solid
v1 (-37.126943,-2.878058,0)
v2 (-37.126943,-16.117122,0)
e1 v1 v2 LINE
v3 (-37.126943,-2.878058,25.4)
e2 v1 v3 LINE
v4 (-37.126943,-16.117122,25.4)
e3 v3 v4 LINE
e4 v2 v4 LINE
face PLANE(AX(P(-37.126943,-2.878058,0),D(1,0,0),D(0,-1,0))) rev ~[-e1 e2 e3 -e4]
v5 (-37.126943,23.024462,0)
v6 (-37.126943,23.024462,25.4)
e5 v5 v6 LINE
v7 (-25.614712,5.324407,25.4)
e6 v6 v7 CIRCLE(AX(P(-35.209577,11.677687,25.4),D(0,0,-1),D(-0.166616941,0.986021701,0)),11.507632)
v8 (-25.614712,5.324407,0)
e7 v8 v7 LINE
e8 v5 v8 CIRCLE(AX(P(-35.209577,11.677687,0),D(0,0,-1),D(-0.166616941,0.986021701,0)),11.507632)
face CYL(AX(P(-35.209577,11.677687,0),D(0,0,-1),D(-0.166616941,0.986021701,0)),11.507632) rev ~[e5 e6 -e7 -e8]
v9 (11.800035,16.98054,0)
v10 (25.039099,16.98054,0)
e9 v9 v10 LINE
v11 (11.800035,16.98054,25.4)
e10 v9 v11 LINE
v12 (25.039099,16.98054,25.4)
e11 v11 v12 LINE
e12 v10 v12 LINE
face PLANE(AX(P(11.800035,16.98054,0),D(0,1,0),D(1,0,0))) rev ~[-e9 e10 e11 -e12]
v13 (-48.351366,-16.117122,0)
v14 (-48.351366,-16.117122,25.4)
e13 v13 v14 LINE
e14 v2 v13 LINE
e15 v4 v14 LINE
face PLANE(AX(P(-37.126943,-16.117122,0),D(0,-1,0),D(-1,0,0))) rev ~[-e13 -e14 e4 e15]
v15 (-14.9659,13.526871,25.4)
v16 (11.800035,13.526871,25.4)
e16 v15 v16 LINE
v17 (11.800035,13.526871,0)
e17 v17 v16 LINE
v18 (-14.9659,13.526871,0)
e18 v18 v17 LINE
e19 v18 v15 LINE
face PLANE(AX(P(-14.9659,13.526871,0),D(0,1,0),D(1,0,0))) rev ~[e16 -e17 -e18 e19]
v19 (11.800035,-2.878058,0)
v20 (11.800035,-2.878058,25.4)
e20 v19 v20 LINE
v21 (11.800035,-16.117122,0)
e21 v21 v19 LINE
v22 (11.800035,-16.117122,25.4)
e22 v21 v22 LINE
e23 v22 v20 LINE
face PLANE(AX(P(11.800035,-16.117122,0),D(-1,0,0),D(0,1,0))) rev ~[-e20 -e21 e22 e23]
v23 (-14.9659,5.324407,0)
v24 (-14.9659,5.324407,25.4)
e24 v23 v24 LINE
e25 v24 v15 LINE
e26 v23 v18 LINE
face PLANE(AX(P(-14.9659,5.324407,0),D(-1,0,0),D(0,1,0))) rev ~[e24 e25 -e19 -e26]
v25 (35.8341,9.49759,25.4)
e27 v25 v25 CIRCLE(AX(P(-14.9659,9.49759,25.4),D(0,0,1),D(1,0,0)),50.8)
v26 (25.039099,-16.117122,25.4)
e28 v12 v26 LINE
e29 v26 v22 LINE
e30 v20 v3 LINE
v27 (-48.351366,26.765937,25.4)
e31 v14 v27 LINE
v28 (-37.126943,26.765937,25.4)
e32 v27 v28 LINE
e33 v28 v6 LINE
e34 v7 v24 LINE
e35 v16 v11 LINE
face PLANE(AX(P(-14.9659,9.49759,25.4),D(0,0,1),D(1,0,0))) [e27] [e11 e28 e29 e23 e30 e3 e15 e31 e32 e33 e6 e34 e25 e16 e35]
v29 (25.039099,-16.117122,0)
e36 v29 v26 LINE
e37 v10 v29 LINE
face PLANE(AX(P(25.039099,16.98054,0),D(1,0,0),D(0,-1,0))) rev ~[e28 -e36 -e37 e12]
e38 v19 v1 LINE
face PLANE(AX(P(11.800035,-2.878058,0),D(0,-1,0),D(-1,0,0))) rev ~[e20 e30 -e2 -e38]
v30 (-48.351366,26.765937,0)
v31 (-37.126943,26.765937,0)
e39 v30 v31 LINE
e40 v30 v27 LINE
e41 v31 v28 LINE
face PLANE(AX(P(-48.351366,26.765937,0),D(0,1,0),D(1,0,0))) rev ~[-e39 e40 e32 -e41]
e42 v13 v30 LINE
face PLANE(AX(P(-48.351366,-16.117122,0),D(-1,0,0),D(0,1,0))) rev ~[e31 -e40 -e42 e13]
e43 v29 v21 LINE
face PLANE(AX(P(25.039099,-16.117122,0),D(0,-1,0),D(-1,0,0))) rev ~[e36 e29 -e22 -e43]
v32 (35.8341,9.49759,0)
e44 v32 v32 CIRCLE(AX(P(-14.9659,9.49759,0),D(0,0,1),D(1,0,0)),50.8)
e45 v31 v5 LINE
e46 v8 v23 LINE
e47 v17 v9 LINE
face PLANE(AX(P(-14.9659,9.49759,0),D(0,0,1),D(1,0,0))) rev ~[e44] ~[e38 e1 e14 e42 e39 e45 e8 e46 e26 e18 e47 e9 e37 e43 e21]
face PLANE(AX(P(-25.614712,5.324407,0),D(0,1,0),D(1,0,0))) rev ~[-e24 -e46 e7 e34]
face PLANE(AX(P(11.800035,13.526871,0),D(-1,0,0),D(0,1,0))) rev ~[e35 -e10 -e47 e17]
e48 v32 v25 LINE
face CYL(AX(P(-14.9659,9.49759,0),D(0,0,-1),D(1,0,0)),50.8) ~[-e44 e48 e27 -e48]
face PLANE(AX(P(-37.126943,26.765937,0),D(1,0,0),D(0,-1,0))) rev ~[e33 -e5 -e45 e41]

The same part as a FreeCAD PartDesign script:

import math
import FreeCAD as App
import Part
import Sketcher

V = App.Vector
Q = App.Units.Quantity

doc = App.newDocument("Part")
body = doc.addObject("PartDesign::Body", "Body")

# Sketch on XY plane
sketch1 = body.newObject("Sketcher::SketchObject", "Sketch")
sketch1.AttachmentSupport = (doc.getObject("XY_Plane"), [""])
sketch1.MapMode = "FlatFace"
sketch1.addGeometry(Part.Circle(V(-15, 9.5, 0), V(0, 0, 1), 50.8), False)
sketch1.addGeometry(Part.LineSegment(V(-37.1, -2.9, 0), V(-37.1, -16.1, 0)), False)
sketch1.addGeometry(Part.LineSegment(V(-37.1, -16.1, 0), V(-48.4, -16.1, 0)), False)
sketch1.addGeometry(Part.LineSegment(V(-48.4, -16.1, 0), V(-48.4, 26.8, 0)), False)
sketch1.addGeometry(Part.LineSegment(V(-48.4, 26.8, 0), V(-37.1, 26.8, 0)), False)
sketch1.addGeometry(Part.LineSegment(V(-37.1, 26.8, 0), V(-37.1, 23, 0)), False)
sketch1.addGeometry(Part.ArcOfCircle(Part.Circle(V(-35.2, 11.7, 0), V(0, 0, 1), 11.5), math.radians(-34), math.radians(100)), False)
sketch1.addGeometry(Part.LineSegment(V(-25.6, 5.3, 0), V(-15, 5.3, 0)), False)
sketch1.addGeometry(Part.LineSegment(V(-15, 5.3, 0), V(-15, 13.5, 0)), False)
sketch1.addGeometry(Part.LineSegment(V(-15, 13.5, 0), V(11.8, 13.5, 0)), False)
sketch1.addGeometry(Part.LineSegment(V(11.8, 13.5, 0), V(11.8, 17, 0)), False)
sketch1.addGeometry(Part.LineSegment(V(11.8, 17, 0), V(25, 17, 0)), False)
sketch1.addGeometry(Part.LineSegment(V(25, 17, 0), V(25, -16.1, 0)), False)
sketch1.addGeometry(Part.LineSegment(V(25, -16.1, 0), V(11.8, -16.1, 0)), False)
sketch1.addGeometry(Part.LineSegment(V(11.8, -16.1, 0), V(11.8, -2.9, 0)), False)
sketch1.addGeometry(Part.LineSegment(V(11.8, -2.9, 0), V(-37.1, -2.9, 0)), False)
sketch1.addConstraint(Sketcher.Constraint("Coincident", 1, 2, 2, 1))
sketch1.addConstraint(Sketcher.Constraint("Coincident", 2, 2, 3, 1))
sketch1.addConstraint(Sketcher.Constraint("Coincident", 3, 2, 4, 1))
sketch1.addConstraint(Sketcher.Constraint("Coincident", 4, 2, 5, 1))
sketch1.addConstraint(Sketcher.Constraint("Coincident", 5, 2, 6, 2))
sketch1.addConstraint(Sketcher.Constraint("Coincident", 6, 1, 7, 1))
sketch1.addConstraint(Sketcher.Constraint("Coincident", 7, 2, 8, 1))
sketch1.addConstraint(Sketcher.Constraint("Coincident", 8, 2, 9, 1))
sketch1.addConstraint(Sketcher.Constraint("Coincident", 9, 2, 10, 1))
sketch1.addConstraint(Sketcher.Constraint("Coincident", 10, 2, 11, 1))
sketch1.addConstraint(Sketcher.Constraint("Coincident", 11, 2, 12, 1))
sketch1.addConstraint(Sketcher.Constraint("Coincident", 12, 2, 13, 1))
sketch1.addConstraint(Sketcher.Constraint("Coincident", 13, 2, 14, 1))
sketch1.addConstraint(Sketcher.Constraint("Coincident", 14, 2, 15, 1))
sketch1.addConstraint(Sketcher.Constraint("Coincident", 15, 2, 1, 1))
sketch1.addConstraint(Sketcher.Constraint("Vertical", 1))
sketch1.addConstraint(Sketcher.Constraint("Horizontal", 2))
sketch1.addConstraint(Sketcher.Constraint("Vertical", 3))
sketch1.addConstraint(Sketcher.Constraint("Horizontal", 4))
sketch1.addConstraint(Sketcher.Constraint("Vertical", 5))
sketch1.addConstraint(Sketcher.Constraint("Horizontal", 7))
sketch1.addConstraint(Sketcher.Constraint("Vertical", 8))
sketch1.addConstraint(Sketcher.Constraint("Horizontal", 9))
sketch1.addConstraint(Sketcher.Constraint("Vertical", 10))
sketch1.addConstraint(Sketcher.Constraint("Horizontal", 11))
sketch1.addConstraint(Sketcher.Constraint("Vertical", 12))
sketch1.addConstraint(Sketcher.Constraint("Horizontal", 13))
sketch1.addConstraint(Sketcher.Constraint("Vertical", 14))
sketch1.addConstraint(Sketcher.Constraint("Horizontal", 15))
sketch1.addConstraint(Sketcher.Constraint("Horizontal", 2, 2, 12, 2))
sketch1.addConstraint(Sketcher.Constraint("Vertical", 1, 2, 4, 2))
sketch1.addConstraint(Sketcher.Constraint("Vertical", 0, 3, 7, 2))
sketch1.addConstraint(Sketcher.Constraint("Vertical", 10, 2, 13, 2))
sketch1.addConstraint(Sketcher.Constraint("Equal", 13, 1))
sketch1.addConstraint(Sketcher.Constraint("Diameter", 0, Q("4 in")))
sketch1.addConstraint(Sketcher.Constraint("Radius", 6, Q("11.507632 mm")))
sketch1.addConstraint(Sketcher.Constraint("DistanceX", 8, 2, 11, 2, Q("1.575 in")))
sketch1.addConstraint(Sketcher.Constraint("DistanceX", 15, 2, 15, 1, Q("48.926978 mm")))
sketch1.addConstraint(Sketcher.Constraint("DistanceY", 3, 1, 3, 2, Q("42.883059 mm")))
sketch1.addConstraint(Sketcher.Constraint("DistanceY", 10, 1, 10, 2, Q("3.453669 mm")))
sketch1.addConstraint(Sketcher.Constraint("DistanceX", 0, 3, -1, 1, Q("14.9659 mm")))
sketch1.addConstraint(Sketcher.Constraint("DistanceX", 2, 2, 2, 1, Q("11.224423 mm")))
sketch1.addConstraint(Sketcher.Constraint("DistanceX", 7, 1, 7, 2, Q("10.648812 mm")))
sketch1.addConstraint(Sketcher.Constraint("DistanceX", 9, 1, 9, 2, Q("26.765935 mm")))
sketch1.addConstraint(Sketcher.Constraint("DistanceY", 5, 2, 5, 1, Q("3.741475 mm")))
sketch1.addConstraint(Sketcher.Constraint("DistanceY", 8, 1, 8, 2, Q("8.202463 mm")))
sketch1.addConstraint(Sketcher.Constraint("DistanceY", 12, 2, 12, 1, Q("33.097662 mm")))
sketch1.addConstraint(Sketcher.Constraint("DistanceY", -1, 1, 0, 3, Q("9.49759 mm")))
sketch1.addConstraint(Sketcher.Constraint("DistanceY", -1, 1, 8, 2, Q("13.526871 mm")))
pad1 = body.newObject("PartDesign::Pad", "Pad")
pad1.Profile = sketch1
pad1.Length = Q("1 in")

# Sketch on XY plane
sketch2 = body.newObject("Sketcher::SketchObject", "Sketch001")
sketch2.AttachmentSupport = (doc.getObject("XY_Plane"), [""])
sketch2.MapMode = "FlatFace"
sketch2.addGeometry(Part.Circle(V(-15, 9.5, 0), V(0, 0, 1), 50.8), False)
sketch2.addGeometry(Part.LineSegment(V(-37.1, -2.9, 0), V(-37.1, -16.1, 0)), False)
sketch2.addGeometry(Part.LineSegment(V(-37.1, -16.1, 0), V(-48.4, -16.1, 0)), False)
sketch2.addGeometry(Part.LineSegment(V(-48.4, -16.1, 0), V(-48.4, 26.8, 0)), False)
sketch2.addGeometry(Part.LineSegment(V(-48.4, 26.8, 0), V(-37.1, 26.8, 0)), False)
sketch2.addGeometry(Part.LineSegment(V(-37.1, 26.8, 0), V(-37.1, 23, 0)), False)
sketch2.addGeometry(Part.ArcOfCircle(Part.Circle(V(-35.2, 11.7, 0), V(0, 0, 1), 11.5), math.radians(-34), math.radians(100)), False)
sketch2.addGeometry(Part.LineSegment(V(-25.6, 5.3, 0), V(-15, 5.3, 0)), False)
sketch2.addGeometry(Part.LineSegment(V(-15, 5.3, 0), V(-15, 13.5, 0)), False)
sketch2.addGeometry(Part.LineSegment(V(-15, 13.5, 0), V(11.8, 13.5, 0)), False)
sketch2.addGeometry(Part.LineSegment(V(11.8, 13.5, 0), V(11.8, 17, 0)), False)
sketch2.addGeometry(Part.LineSegment(V(11.8, 17, 0), V(25, 17, 0)), False)
sketch2.addGeometry(Part.LineSegment(V(25, 17, 0), V(25, -16.1, 0)), False)
sketch2.addGeometry(Part.LineSegment(V(25, -16.1, 0), V(11.8, -16.1, 0)), False)
sketch2.addGeometry(Part.LineSegment(V(11.8, -16.1, 0), V(11.8, -2.9, 0)), False)
sketch2.addGeometry(Part.LineSegment(V(11.8, -2.9, 0), V(-37.1, -2.9, 0)), False)
sketch2.addConstraint(Sketcher.Constraint("Coincident", 1, 2, 2, 1))
sketch2.addConstraint(Sketcher.Constraint("Coincident", 2, 2, 3, 1))
sketch2.addConstraint(Sketcher.Constraint("Coincident", 3, 2, 4, 1))
sketch2.addConstraint(Sketcher.Constraint("Coincident", 4, 2, 5, 1))
sketch2.addConstraint(Sketcher.Constraint("Coincident", 5, 2, 6, 2))
sketch2.addConstraint(Sketcher.Constraint("Coincident", 6, 1, 7, 1))
sketch2.addConstraint(Sketcher.Constraint("Coincident", 7, 2, 8, 1))
sketch2.addConstraint(Sketcher.Constraint("Coincident", 8, 2, 9, 1))
sketch2.addConstraint(Sketcher.Constraint("Coincident", 9, 2, 10, 1))
sketch2.addConstraint(Sketcher.Constraint("Coincident", 10, 2, 11, 1))
sketch2.addConstraint(Sketcher.Constraint("Coincident", 11, 2, 12, 1))
sketch2.addConstraint(Sketcher.Constraint("Coincident", 12, 2, 13, 1))
sketch2.addConstraint(Sketcher.Constraint("Coincident", 13, 2, 14, 1))
sketch2.addConstraint(Sketcher.Constraint("Coincident", 14, 2, 15, 1))
sketch2.addConstraint(Sketcher.Constraint("Coincident", 15, 2, 1, 1))
sketch2.addConstraint(Sketcher.Constraint("Vertical", 1))
sketch2.addConstraint(Sketcher.Constraint("Horizontal", 2))
sketch2.addConstraint(Sketcher.Constraint("Vertical", 3))
sketch2.addConstraint(Sketcher.Constraint("Horizontal", 4))
sketch2.addConstraint(Sketcher.Constraint("Vertical", 5))
sketch2.addConstraint(Sketcher.Constraint("Horizontal", 7))
sketch2.addConstraint(Sketcher.Constraint("Vertical", 8))
sketch2.addConstraint(Sketcher.Constraint("Horizontal", 9))
sketch2.addConstraint(Sketcher.Constraint("Vertical", 10))
sketch2.addConstraint(Sketcher.Constraint("Horizontal", 11))
sketch2.addConstraint(Sketcher.Constraint("Vertical", 12))
sketch2.addConstraint(Sketcher.Constraint("Horizontal", 13))
sketch2.addConstraint(Sketcher.Constraint("Vertical", 14))
sketch2.addConstraint(Sketcher.Constraint("Horizontal", 15))
sketch2.addConstraint(Sketcher.Constraint("Horizontal", 2, 2, 12, 2))
sketch2.addConstraint(Sketcher.Constraint("Vertical", 1, 2, 4, 2))
sketch2.addConstraint(Sketcher.Constraint("Vertical", 0, 3, 7, 2))
sketch2.addConstraint(Sketcher.Constraint("Vertical", 10, 2, 13, 2))
sketch2.addConstraint(Sketcher.Constraint("Equal", 13, 1))
sketch2.addConstraint(Sketcher.Constraint("Diameter", 0, Q("4 in")))
sketch2.addConstraint(Sketcher.Constraint("Radius", 6, Q("11.507632 mm")))
sketch2.addConstraint(Sketcher.Constraint("DistanceX", 8, 2, 11, 2, Q("1.575 in")))
sketch2.addConstraint(Sketcher.Constraint("DistanceX", 15, 2, 15, 1, Q("48.926978 mm")))
sketch2.addConstraint(Sketcher.Constraint("DistanceY", 3, 1, 3, 2, Q("42.883059 mm")))
sketch2.addConstraint(Sketcher.Constraint("DistanceY", 10, 1, 10, 2, Q("3.453669 mm")))
sketch2.addConstraint(Sketcher.Constraint("DistanceX", 0, 3, -1, 1, Q("14.9659 mm")))
sketch2.addConstraint(Sketcher.Constraint("DistanceX", 2, 2, 2, 1, Q("11.224423 mm")))
sketch2.addConstraint(Sketcher.Constraint("DistanceX", 7, 1, 7, 2, Q("10.648812 mm")))
sketch2.addConstraint(Sketcher.Constraint("DistanceX", 9, 1, 9, 2, Q("26.765935 mm")))
sketch2.addConstraint(Sketcher.Constraint("DistanceY", 5, 2, 5, 1, Q("3.741475 mm")))
sketch2.addConstraint(Sketcher.Constraint("DistanceY", 8, 1, 8, 2, Q("8.202463 mm")))
sketch2.addConstraint(Sketcher.Constraint("DistanceY", 12, 2, 12, 1, Q("33.097662 mm")))
sketch2.addConstraint(Sketcher.Constraint("DistanceY", -1, 1, 0, 3, Q("9.49759 mm")))
sketch2.addConstraint(Sketcher.Constraint("DistanceY", -1, 1, 8, 2, Q("13.526871 mm")))
pad2 = body.newObject("PartDesign::Pad", "Pad001")
pad2.Profile = sketch2
pad2.Length = Q("1 in")

doc.recompute()
